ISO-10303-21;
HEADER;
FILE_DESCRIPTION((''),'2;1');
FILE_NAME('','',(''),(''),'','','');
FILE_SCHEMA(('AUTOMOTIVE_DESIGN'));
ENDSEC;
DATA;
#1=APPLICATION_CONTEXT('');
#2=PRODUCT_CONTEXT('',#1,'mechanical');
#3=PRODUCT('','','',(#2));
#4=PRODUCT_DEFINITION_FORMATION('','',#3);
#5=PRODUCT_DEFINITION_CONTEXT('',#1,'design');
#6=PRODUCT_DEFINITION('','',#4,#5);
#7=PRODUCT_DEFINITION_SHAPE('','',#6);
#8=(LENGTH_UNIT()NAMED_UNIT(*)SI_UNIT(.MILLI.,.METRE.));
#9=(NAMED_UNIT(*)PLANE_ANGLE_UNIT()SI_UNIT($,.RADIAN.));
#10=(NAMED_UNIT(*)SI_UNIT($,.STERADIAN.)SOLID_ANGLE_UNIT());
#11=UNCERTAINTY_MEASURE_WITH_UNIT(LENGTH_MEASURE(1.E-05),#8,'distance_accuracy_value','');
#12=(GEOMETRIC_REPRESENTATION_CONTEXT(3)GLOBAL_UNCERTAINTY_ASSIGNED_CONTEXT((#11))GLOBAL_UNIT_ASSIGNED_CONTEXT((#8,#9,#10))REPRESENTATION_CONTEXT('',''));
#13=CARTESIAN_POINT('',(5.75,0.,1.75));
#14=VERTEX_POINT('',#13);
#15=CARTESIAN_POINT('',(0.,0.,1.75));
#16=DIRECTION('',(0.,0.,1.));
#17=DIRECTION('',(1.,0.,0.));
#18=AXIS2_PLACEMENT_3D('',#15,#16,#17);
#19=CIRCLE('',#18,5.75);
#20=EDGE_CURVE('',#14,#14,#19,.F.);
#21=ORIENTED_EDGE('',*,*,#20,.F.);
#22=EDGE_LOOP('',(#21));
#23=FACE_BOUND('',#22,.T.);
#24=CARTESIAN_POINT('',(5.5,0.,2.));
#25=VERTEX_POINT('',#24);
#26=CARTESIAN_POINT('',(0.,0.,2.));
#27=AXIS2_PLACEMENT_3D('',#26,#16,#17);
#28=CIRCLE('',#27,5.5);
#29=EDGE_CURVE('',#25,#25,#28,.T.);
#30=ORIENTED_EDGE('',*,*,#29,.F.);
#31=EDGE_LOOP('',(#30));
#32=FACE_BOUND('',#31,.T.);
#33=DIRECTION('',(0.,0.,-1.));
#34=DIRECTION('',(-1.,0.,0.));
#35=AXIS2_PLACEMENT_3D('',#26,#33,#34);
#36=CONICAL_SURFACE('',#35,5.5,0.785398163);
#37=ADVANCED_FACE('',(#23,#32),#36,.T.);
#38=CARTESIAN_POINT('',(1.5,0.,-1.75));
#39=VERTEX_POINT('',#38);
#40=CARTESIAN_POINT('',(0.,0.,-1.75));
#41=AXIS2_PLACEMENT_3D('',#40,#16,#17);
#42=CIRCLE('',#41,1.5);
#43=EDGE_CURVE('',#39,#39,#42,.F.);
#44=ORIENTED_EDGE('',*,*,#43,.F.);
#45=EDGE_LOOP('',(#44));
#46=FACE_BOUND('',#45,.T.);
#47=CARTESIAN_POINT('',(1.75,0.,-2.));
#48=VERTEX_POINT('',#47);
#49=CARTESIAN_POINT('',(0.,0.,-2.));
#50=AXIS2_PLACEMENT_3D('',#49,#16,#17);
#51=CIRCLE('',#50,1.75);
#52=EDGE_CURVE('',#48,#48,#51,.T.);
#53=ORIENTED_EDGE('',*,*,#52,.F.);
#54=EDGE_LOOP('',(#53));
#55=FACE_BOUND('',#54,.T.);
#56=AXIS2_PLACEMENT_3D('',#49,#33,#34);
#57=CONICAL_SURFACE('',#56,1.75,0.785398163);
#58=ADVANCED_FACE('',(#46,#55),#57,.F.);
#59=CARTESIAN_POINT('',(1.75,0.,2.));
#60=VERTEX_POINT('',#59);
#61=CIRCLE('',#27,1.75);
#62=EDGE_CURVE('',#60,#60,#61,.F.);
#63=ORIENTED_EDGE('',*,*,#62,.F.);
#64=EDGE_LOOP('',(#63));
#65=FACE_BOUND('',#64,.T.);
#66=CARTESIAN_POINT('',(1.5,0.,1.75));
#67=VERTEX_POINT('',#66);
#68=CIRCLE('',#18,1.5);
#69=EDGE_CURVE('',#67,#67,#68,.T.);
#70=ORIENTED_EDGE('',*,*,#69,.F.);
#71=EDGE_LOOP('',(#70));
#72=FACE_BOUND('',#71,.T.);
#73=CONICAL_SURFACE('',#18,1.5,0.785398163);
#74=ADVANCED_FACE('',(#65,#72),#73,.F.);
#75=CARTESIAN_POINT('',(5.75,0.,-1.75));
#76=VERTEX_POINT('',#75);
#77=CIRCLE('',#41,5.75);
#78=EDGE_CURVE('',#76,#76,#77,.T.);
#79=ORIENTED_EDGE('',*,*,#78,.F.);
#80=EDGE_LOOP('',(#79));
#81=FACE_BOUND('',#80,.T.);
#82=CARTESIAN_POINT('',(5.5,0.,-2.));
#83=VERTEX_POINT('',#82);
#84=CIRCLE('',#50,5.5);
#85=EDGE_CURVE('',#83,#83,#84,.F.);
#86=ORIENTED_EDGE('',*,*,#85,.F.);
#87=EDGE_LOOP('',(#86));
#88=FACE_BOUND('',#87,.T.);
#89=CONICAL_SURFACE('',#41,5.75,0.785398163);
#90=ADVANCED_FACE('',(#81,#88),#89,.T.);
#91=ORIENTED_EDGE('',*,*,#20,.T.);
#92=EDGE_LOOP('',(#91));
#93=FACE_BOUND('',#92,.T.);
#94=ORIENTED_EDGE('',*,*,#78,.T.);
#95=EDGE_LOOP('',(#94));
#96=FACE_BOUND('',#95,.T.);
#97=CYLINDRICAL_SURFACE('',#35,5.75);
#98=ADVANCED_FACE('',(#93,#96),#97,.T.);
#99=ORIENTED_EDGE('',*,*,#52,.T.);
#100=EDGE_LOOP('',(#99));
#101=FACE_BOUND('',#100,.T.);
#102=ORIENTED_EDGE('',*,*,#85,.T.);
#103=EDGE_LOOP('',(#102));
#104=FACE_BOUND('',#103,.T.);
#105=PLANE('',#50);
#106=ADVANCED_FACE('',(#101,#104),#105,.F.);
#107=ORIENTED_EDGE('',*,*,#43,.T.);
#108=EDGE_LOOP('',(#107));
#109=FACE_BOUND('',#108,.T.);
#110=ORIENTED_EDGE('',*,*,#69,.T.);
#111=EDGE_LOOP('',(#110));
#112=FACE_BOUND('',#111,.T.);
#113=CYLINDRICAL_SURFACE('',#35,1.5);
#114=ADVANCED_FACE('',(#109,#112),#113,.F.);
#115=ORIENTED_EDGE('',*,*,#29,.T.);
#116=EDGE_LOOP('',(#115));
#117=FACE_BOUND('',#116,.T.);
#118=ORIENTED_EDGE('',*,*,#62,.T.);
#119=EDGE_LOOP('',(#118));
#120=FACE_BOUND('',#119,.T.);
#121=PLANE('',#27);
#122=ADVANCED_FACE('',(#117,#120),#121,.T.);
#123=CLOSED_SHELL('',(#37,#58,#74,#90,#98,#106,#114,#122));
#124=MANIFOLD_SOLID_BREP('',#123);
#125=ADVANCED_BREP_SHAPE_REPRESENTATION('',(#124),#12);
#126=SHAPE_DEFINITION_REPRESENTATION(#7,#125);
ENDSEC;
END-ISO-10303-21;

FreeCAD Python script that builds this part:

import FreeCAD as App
import Part
import Sketcher
Q = App.Units.Quantity


def edges_at(feature, points):
    """Names of the edges that pass closest to the given points."""
    edges = feature.Shape.Edges
    near = lambda p: min(range(len(edges)), key=lambda i: edges[i].distToShape(Part.Vertex(*p))[0])
    return sorted({f"Edge{near(p) + 1}" for p in points})

doc = App.newDocument("Part")
body = doc.addObject("PartDesign::Body", "Body")

# Sketch on XY plane
sketch1 = doc.addObject("Sketcher::SketchObject", "Sketch")
body.addObject(sketch1)
sketch1.AttachmentSupport = (doc.XY_Plane, [""])
sketch1.MapMode = "FlatFace"
sketch1.addGeometry(Part.Circle(App.Vector(0, 0, 0), App.Vector(0, 0, 1), 5.8), False)
sketch1.addGeometry(Part.Circle(App.Vector(0, 0, 0), App.Vector(0, 0, 1), 1.5), False)
sketch1.addConstraint(Sketcher.Constraint("Coincident", 0, 3, -1, 1))
sketch1.addConstraint(Sketcher.Constraint("Coincident", 1, 3, -1, 1))
sketch1.addConstraint(Sketcher.Constraint("Diameter", 1, Q("3 mm")))
sketch1.addConstraint(Sketcher.Constraint("Diameter", 0, Q("11.5 mm")))
pad1 = doc.addObject("PartDesign::Pad", "Pad")
body.addObject(pad1)
pad1.Profile = sketch1
pad1.Length = 4
pad1.Midplane = True
doc.recompute()

chamfer = doc.addObject("PartDesign::Chamfer", "Chamfer")
body.addObject(chamfer)
chamfer.Base = (pad1, edges_at(pad1, [
    (-5.75, 0, -2),
    (-5.75, 0, 2),
    (-1.5, 0, -2),
    (-1.5, 0, 2),
]))
chamfer.Size = 0.25

doc.recompute()
